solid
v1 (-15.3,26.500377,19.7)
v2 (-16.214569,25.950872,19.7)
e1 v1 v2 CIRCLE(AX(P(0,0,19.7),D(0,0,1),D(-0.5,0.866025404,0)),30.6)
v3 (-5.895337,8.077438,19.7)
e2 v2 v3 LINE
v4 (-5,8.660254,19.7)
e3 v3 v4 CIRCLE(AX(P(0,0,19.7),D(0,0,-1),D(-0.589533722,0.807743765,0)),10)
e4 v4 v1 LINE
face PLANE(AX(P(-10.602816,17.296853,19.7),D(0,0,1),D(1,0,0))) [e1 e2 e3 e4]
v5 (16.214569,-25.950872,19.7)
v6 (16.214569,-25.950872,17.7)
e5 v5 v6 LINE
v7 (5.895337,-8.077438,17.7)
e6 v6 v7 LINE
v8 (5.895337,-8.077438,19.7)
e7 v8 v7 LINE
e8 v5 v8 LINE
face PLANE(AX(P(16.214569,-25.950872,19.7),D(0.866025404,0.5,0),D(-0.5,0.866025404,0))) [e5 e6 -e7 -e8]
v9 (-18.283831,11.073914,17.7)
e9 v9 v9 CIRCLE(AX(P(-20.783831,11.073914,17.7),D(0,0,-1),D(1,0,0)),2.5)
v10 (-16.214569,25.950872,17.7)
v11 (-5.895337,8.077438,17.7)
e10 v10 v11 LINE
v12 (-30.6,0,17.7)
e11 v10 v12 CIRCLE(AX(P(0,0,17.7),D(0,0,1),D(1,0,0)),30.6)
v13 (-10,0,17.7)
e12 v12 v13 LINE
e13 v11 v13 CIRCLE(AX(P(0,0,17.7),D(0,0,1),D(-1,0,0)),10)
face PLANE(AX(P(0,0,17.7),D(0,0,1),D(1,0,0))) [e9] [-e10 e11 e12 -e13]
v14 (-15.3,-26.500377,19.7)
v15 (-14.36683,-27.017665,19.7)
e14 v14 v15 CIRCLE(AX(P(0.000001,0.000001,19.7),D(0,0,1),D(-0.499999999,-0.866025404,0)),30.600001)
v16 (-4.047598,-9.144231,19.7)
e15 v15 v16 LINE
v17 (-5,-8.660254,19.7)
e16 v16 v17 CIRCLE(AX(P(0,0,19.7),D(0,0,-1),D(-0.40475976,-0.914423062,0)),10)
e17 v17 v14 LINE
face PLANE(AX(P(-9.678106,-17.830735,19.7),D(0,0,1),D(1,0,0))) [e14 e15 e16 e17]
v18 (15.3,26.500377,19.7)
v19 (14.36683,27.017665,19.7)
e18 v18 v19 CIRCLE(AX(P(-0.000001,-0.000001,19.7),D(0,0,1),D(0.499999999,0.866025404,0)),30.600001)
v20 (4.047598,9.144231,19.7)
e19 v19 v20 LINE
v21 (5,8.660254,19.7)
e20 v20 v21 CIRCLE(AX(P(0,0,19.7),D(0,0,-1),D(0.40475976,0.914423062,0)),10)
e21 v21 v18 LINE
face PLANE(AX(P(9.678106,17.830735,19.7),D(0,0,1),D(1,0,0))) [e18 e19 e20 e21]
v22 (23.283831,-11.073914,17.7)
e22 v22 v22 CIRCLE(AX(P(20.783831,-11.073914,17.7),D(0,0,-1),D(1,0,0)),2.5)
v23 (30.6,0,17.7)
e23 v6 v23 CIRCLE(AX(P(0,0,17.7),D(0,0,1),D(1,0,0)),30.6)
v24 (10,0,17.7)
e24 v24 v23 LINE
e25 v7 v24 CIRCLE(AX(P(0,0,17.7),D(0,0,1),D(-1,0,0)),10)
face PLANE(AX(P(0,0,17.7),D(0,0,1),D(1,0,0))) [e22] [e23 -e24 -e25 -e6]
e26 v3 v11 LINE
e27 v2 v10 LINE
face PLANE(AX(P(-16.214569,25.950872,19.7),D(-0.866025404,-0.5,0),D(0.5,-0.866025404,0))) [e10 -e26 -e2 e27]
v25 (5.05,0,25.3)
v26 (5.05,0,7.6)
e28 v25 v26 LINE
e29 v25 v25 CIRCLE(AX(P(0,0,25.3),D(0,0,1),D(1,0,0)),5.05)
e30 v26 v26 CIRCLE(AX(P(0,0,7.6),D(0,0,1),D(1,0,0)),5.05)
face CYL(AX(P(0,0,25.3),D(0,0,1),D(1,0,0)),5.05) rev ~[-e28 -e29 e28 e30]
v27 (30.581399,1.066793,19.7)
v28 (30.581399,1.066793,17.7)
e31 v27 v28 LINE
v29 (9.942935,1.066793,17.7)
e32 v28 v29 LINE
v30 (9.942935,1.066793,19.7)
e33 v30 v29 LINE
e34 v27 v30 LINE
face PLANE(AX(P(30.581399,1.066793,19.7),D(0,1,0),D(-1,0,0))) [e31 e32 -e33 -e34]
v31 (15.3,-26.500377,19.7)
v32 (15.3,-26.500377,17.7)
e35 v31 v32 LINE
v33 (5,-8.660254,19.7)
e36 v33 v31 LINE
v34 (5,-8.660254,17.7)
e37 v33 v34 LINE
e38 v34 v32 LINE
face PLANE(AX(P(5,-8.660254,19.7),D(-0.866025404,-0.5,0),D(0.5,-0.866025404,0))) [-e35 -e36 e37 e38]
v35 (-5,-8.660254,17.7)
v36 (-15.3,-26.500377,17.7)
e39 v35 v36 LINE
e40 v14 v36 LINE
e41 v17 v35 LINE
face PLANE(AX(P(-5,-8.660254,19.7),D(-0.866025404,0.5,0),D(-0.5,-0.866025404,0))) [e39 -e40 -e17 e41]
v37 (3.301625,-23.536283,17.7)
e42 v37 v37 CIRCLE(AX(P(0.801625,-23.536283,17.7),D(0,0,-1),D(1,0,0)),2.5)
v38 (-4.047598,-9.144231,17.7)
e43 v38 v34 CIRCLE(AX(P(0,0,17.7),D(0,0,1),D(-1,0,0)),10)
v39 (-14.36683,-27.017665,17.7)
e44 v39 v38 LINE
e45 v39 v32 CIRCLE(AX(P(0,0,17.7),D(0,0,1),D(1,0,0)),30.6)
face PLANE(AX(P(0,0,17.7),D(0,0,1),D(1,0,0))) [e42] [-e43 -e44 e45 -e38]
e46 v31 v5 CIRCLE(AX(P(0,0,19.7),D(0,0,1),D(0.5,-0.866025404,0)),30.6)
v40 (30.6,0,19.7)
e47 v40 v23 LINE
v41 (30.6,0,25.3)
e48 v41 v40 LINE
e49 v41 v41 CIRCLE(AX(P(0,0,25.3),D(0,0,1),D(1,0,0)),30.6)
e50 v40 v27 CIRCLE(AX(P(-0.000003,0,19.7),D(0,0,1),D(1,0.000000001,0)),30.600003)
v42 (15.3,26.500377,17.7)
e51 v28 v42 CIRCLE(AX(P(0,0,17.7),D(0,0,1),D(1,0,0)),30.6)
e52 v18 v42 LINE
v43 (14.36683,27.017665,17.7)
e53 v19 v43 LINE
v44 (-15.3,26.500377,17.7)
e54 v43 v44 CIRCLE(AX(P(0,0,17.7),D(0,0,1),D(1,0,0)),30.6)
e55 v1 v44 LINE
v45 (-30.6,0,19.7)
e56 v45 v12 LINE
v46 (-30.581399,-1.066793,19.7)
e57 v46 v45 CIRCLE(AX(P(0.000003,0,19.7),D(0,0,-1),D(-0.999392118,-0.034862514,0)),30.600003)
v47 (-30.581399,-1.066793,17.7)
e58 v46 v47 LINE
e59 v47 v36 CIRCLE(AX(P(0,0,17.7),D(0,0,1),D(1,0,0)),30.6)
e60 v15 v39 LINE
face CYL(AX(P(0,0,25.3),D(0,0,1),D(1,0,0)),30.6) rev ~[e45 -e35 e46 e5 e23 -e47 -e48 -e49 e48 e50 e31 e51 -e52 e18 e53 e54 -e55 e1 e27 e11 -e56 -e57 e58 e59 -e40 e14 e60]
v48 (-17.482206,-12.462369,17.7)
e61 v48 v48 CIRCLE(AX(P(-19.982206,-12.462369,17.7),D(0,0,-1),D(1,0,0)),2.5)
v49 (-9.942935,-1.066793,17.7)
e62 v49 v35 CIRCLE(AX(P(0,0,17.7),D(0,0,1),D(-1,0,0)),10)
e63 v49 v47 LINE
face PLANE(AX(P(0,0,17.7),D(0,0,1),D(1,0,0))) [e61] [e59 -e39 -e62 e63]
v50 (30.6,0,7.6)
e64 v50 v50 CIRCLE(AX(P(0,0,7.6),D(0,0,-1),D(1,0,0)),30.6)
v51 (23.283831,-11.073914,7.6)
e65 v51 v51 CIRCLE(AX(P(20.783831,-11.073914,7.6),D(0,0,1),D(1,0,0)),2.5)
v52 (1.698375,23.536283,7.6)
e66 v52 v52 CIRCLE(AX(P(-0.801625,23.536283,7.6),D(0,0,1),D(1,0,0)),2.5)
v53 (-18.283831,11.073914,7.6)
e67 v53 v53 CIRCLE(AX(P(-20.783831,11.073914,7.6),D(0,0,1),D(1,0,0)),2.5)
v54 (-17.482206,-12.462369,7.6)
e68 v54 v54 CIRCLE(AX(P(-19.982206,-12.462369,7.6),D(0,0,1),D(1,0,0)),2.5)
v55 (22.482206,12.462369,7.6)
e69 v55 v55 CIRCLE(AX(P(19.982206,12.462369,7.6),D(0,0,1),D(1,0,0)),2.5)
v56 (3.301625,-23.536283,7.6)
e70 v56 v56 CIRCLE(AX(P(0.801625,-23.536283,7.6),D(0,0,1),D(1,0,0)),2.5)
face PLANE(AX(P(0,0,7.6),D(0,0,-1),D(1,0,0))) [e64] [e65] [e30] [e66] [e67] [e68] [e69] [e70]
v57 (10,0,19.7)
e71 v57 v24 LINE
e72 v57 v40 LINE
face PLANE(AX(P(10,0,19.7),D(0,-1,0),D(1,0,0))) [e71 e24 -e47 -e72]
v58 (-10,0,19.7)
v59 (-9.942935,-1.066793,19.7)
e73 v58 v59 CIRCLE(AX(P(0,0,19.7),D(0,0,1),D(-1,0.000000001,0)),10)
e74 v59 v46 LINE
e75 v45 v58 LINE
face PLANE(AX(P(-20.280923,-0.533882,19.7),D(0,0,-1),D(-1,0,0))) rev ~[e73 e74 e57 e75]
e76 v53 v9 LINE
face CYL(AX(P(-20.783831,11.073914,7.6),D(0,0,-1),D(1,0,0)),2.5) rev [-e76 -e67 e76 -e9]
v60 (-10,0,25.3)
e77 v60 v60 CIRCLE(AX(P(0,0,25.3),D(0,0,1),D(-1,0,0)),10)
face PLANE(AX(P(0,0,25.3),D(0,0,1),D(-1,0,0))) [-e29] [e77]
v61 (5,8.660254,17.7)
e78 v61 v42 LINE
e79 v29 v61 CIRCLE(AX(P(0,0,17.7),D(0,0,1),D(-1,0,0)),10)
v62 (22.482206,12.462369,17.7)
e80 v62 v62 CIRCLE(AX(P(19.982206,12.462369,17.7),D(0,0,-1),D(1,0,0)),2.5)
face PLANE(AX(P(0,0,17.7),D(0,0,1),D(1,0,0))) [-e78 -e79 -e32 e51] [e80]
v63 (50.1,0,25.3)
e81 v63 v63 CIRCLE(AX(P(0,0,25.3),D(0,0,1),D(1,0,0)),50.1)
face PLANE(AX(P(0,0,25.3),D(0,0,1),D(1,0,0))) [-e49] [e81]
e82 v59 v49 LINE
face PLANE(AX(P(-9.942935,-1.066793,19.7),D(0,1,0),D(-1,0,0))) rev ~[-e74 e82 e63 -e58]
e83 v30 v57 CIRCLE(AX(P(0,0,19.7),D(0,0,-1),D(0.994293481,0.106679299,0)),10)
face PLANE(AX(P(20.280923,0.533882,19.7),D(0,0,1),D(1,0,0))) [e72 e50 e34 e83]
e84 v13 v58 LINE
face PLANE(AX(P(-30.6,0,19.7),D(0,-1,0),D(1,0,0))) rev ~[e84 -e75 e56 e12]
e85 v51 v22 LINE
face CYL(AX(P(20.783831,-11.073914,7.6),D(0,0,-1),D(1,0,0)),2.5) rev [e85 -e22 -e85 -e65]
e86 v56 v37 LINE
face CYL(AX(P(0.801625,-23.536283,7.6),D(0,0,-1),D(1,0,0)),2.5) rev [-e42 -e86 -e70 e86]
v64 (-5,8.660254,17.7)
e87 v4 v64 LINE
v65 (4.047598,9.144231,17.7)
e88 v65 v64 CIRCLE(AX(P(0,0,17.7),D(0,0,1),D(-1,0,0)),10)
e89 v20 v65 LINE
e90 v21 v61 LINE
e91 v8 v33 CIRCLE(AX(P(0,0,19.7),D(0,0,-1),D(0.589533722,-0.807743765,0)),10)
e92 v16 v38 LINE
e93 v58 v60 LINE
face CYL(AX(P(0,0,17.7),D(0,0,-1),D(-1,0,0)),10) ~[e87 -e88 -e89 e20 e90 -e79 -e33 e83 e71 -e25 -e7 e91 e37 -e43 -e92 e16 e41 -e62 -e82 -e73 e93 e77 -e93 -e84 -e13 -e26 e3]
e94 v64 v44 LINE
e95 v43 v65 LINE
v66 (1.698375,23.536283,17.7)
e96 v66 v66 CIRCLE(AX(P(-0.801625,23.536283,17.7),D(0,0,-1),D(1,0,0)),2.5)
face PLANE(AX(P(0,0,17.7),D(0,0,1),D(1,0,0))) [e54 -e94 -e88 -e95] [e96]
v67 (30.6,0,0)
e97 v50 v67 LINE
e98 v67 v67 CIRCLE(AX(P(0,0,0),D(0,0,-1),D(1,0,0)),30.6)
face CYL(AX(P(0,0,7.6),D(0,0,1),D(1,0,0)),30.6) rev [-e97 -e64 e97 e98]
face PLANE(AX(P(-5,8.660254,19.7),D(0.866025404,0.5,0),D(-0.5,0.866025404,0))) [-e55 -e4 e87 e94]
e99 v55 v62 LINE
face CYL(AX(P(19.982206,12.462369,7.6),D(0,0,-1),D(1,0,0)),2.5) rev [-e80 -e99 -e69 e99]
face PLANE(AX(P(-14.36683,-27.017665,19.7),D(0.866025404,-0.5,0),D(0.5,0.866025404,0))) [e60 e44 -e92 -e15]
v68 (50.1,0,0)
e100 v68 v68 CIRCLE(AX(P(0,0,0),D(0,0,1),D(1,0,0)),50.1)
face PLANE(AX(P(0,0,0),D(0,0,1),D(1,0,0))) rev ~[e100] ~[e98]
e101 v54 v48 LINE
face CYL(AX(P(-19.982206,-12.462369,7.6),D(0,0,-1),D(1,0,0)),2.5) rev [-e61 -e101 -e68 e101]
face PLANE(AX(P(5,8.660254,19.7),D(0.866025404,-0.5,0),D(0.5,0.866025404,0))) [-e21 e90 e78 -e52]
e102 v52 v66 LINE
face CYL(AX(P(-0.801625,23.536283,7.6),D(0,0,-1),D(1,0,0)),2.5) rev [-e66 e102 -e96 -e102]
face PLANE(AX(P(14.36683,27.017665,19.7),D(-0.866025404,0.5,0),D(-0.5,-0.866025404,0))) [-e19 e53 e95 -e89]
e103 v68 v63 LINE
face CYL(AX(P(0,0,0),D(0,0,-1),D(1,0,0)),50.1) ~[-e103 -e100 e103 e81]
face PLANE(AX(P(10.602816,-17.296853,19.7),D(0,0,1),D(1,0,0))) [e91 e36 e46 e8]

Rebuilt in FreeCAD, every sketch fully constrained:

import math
import FreeCAD as App
import Part
import Sketcher
from FreeCAD import Vector
Q = App.Units.Quantity

doc = App.newDocument("Part")
params = doc.addObject("Spreadsheet::Sheet", "Params")
for row, (alias, value) in enumerate([
    ("sketch1_diameter", "100.2 mm"),
    ("pad1_length", "25.3 mm"),
    ("sketch2_diameter", "61.2 mm"),
    ("pocket1_length", "7.6 mm"),
    ("sketch3_diameter", "61.2 mm"),
    ("pocket2_length", "7.6 mm"),
    ("sketch4_diameter", "20 mm"),
    ("pad2_length", "7.6 mm"),
    ("sketch5_diameter", "10.1 mm"),
    ("pocket3_length", "10000 mm"),
    ("sketch6_radius", "10 mm"),
    ("sketch6_radius2", "30.6 mm"),
    ("pad3_length", "2 mm"),
    ("sketch7_diameter", "5 mm"),
], start=1):
    params.set(f"A{row}", alias)
    params.set(f"B{row}", "=" + value)
    params.setAlias(f"B{row}", alias)

body = doc.addObject("PartDesign::Body", "Body")

# Sketch on XY plane
sketch1 = body.newObject("Sketcher::SketchObject", "Sketch")
sketch1.AttachmentSupport = (doc.getObject("XY_Plane"), [""])
sketch1.MapMode = "FlatFace"
sketch1.addGeometry(Part.Circle(Vector(0, 0, 0), Vector(0, 0, 1), 50), False)
sketch1.addConstraint([
    Sketcher.Constraint("Coincident", 0, 3, -1, 1),
    Sketcher.Constraint("Diameter", 0, Q("100.2 mm")),
])
sketch1.setExpression("Constraints[1]", "Params.sketch1_diameter")
pad1 = body.newObject("PartDesign::Pad", "Pad")
pad1.Profile = sketch1
pad1.setExpression("Length", "Params.pad1_length")

# Sketch on XY plane
sketch2 = body.newObject("Sketcher::SketchObject", "Sketch001")
sketch2.AttachmentSupport = (doc.getObject("XY_Plane"), [""])
sketch2.MapMode = "FlatFace"
sketch2.AttachmentOffset = App.Placement(Vector(0, 0, 25.3), App.Rotation())
sketch2.addGeometry(Part.Circle(Vector(0, 0, 0), Vector(0, 0, 1), 31), False)
sketch2.addConstraint([
    Sketcher.Constraint("Coincident", 0, 3, -1, 1),
    Sketcher.Constraint("Diameter", 0, Q("61.2 mm")),
])
sketch2.setExpression("Constraints[1]", "Params.sketch2_diameter")
pocket1 = body.newObject("PartDesign::Pocket", "Pocket")
pocket1.Profile = sketch2
pocket1.setExpression("Length", "Params.pocket1_length")

# Sketch on XY plane
sketch3 = body.newObject("Sketcher::SketchObject", "Sketch002")
sketch3.AttachmentSupport = (doc.getObject("XY_Plane"), [""])
sketch3.MapMode = "FlatFace"
sketch3.AttachmentOffset = App.Placement(Vector(0, 0, 7.6), App.Rotation())
sketch3.addGeometry(Part.Circle(Vector(0, 0, 0), Vector(0, 0, 1), 31), False)
sketch3.addConstraint([
    Sketcher.Constraint("Coincident", 0, 3, -1, 1),
    Sketcher.Constraint("Diameter", 0, Q("61.2 mm")),
])
sketch3.setExpression("Constraints[1]", "Params.sketch3_diameter")
pocket2 = body.newObject("PartDesign::Pocket", "Pocket001")
pocket2.Profile = sketch3
pocket2.setExpression("Length", "Params.pocket2_length")

# Sketch on XY plane
sketch4 = body.newObject("Sketcher::SketchObject", "Sketch003")
sketch4.AttachmentSupport = (doc.getObject("XY_Plane"), [""])
sketch4.MapMode = "FlatFace"
sketch4.AttachmentOffset = App.Placement(Vector(0, 0, 17.7), App.Rotation())
sketch4.addGeometry(Part.Circle(Vector(0, 0, 0), Vector(0, 0, 1), 10), False)
sketch4.addConstraint([
    Sketcher.Constraint("Coincident", 0, 3, -1, 1),
    Sketcher.Constraint("Diameter", 0, Q("20 mm")),
])
sketch4.setExpression("Constraints[1]", "Params.sketch4_diameter")
pad2 = body.newObject("PartDesign::Pad", "Pad001")
pad2.Profile = sketch4
pad2.setExpression("Length", "Params.pad2_length")

# Sketch on XY plane
sketch5 = body.newObject("Sketcher::SketchObject", "Sketch004")
sketch5.AttachmentSupport = (doc.getObject("XY_Plane"), [""])
sketch5.MapMode = "FlatFace"
sketch5.AttachmentOffset = App.Placement(Vector(0, 0, 25.3), App.Rotation())
sketch5.addGeometry(Part.Circle(Vector(0, 0, 0), Vector(0, 0, 1), 5), False)
sketch5.addConstraint([
    Sketcher.Constraint("Coincident", 0, 3, -1, 1),
    Sketcher.Constraint("Diameter", 0, Q("10.1 mm")),
])
sketch5.setExpression("Constraints[1]", "Params.sketch5_diameter")
pocket3 = body.newObject("PartDesign::Pocket", "Pocket002")
pocket3.Profile = sketch5
pocket3.setExpression("Length", "Params.pocket3_length")

# Sketch on XY plane
sketch6 = body.newObject("Sketcher::SketchObject", "Sketch005")
sketch6.AttachmentSupport = (doc.getObject("XY_Plane"), [""])
sketch6.MapMode = "FlatFace"
sketch6.AttachmentOffset = App.Placement(Vector(0, 0, 19.7), App.Rotation())
sketch6.addGeometry([
    Part.LineSegment(Vector(-10, 0, 0), Vector(-30.6, 0, 0)),  # 0
    Part.ArcOfCircle(Part.Circle(Vector(0, 0, 0), Vector(0, 0, 1), 30.6), math.radians(-180), math.radians(-178)),  # 1
    Part.LineSegment(Vector(-30.6, -1.1, 0), Vector(-9.9, -1.1, 0)),  # 2
    Part.ArcOfCircle(Part.Circle(Vector(0, 0, 0), Vector(0, 0, 1), 10), math.radians(180), math.radians(186.12)),  # 3
    Part.LineSegment(Vector(-16.2, 26, 0), Vector(-5.9, 8.1, 0)),  # 4
    Part.ArcOfCircle(Part.Circle(Vector(0, 0, 0), Vector(0, 0, 1), 10), math.radians(120), math.radians(126.12)),  # 5
    Part.LineSegment(Vector(-5, 8.7, 0), Vector(-15.3, 26.5, 0)),  # 6
    Part.ArcOfCircle(Part.Circle(Vector(0, 0, 0), Vector(0, 0, 1), 30.6), math.radians(120), math.radians(122)),  # 7
    Part.LineSegment(Vector(14.4, 27, 0), Vector(4, 9.1, 0)),  # 8
    Part.ArcOfCircle(Part.Circle(Vector(0, 0, 0), Vector(0, 0, 1), 10), math.radians(60), math.radians(66.12)),  # 9
    Part.LineSegment(Vector(5, 8.7, 0), Vector(15.3, 26.5, 0)),  # 10
    Part.ArcOfCircle(Part.Circle(Vector(0, 0, 0), Vector(0, 0, 1), 30.6), math.radians(60), math.radians(62)),  # 11
    Part.LineSegment(Vector(30.6, 1.1, 0), Vector(9.9, 1.1, 0)),  # 12
    Part.ArcOfCircle(Part.Circle(Vector(0, 0, 0), Vector(0, 0, 1), 10), math.radians(0), math.radians(6.12)),  # 13
    Part.LineSegment(Vector(10, 0, 0), Vector(30.6, 0, 0)),  # 14
    Part.ArcOfCircle(Part.Circle(Vector(0, 0, 0), Vector(0, 0, 1), 30.6), math.radians(0), math.radians(2)),  # 15
    Part.LineSegment(Vector(16.2, -26, 0), Vector(5.9, -8.1, 0)),  # 16
    Part.ArcOfCircle(Part.Circle(Vector(0, 0, 0), Vector(0, 0, 1), 10), math.radians(-60), math.radians(-53.88)),  # 17
    Part.LineSegment(Vector(5, -8.7, 0), Vector(15.3, -26.5, 0)),  # 18
    Part.ArcOfCircle(Part.Circle(Vector(0, 0, 0), Vector(0, 0, 1), 30.6), math.radians(-60), math.radians(-58)),  # 19
    Part.LineSegment(Vector(-14.4, -27, 0), Vector(-4, -9.1, 0)),  # 20
    Part.ArcOfCircle(Part.Circle(Vector(0, 0, 0), Vector(0, 0, 1), 10), math.radians(-120), math.radians(-113.88)),  # 21
    Part.LineSegment(Vector(-5, -8.7, 0), Vector(-15.3, -26.5, 0)),  # 22
    Part.ArcOfCircle(Part.Circle(Vector(0, 0, 0), Vector(0, 0, 1), 30.6), math.radians(-120), math.radians(-118)),  # 23
], False)
sketch6.addConstraint([
    Sketcher.Constraint("Coincident", 0, 2, 1, 1),
    Sketcher.Constraint("Coincident", 1, 2, 2, 1),
    Sketcher.Constraint("Coincident", 2, 2, 3, 2),
    Sketcher.Constraint("Coincident", 3, 1, 0, 1),
    Sketcher.Constraint("Coincident", 4, 2, 5, 2),
    Sketcher.Constraint("Coincident", 5, 1, 6, 1),
    Sketcher.Constraint("Coincident", 6, 2, 7, 1),
    Sketcher.Constraint("Coincident", 7, 2, 4, 1),
    Sketcher.Constraint("Coincident", 8, 2, 9, 2),
    Sketcher.Constraint("Coincident", 9, 1, 10, 1),
    Sketcher.Constraint("Coincident", 10, 2, 11, 1),
    Sketcher.Constraint("Coincident", 11, 2, 8, 1),
    Sketcher.Constraint("Coincident", 12, 2, 13, 2),
    Sketcher.Constraint("Coincident", 13, 1, 14, 1),
    Sketcher.Constraint("Coincident", 14, 2, 15, 1),
    Sketcher.Constraint("Coincident", 15, 2, 12, 1),
    Sketcher.Constraint("Coincident", 16, 2, 17, 2),
    Sketcher.Constraint("Coincident", 17, 1, 18, 1),
    Sketcher.Constraint("Coincident", 18, 2, 19, 1),
    Sketcher.Constraint("Coincident", 19, 2, 16, 1),
    Sketcher.Constraint("Coincident", 20, 2, 21, 2),
    Sketcher.Constraint("Coincident", 21, 1, 22, 1),
    Sketcher.Constraint("Coincident", 22, 2, 23, 1),
    Sketcher.Constraint("Coincident", 23, 2, 20, 1),
    Sketcher.Constraint("Horizontal", 0),
    Sketcher.Constraint("Horizontal", 2),
    Sketcher.Constraint("Horizontal", 12),
    Sketcher.Constraint("Horizontal", 14),
    Sketcher.Constraint("Coincident", 1, 3, -1, 1),
    Sketcher.Constraint("Coincident", 3, 3, -1, 1),
    Sketcher.Constraint("Coincident", 5, 3, -1, 1),
    Sketcher.Constraint("Coincident", 7, 3, -1, 1),
    Sketcher.Constraint("Coincident", 9, 3, -1, 1),
    Sketcher.Constraint("Coincident", 11, 3, -1, 1),
    Sketcher.Constraint("Coincident", 13, 3, -1, 1),
    Sketcher.Constraint("Coincident", 15, 3, -1, 1),
    Sketcher.Constraint("Coincident", 17, 3, -1, 1),
    Sketcher.Constraint("Coincident", 19, 3, -1, 1),
    Sketcher.Constraint("Coincident", 21, 3, -1, 1),
    Sketcher.Constraint("Coincident", 23, 3, -1, 1),
    Sketcher.Constraint("Equal", 3, 5),
    Sketcher.Constraint("Equal", 5, 9),
    Sketcher.Constraint("Equal", 7, 11),
    Sketcher.Constraint("Equal", 9, 13),
    Sketcher.Constraint("Equal", 11, 15),
    Sketcher.Constraint("Equal", 13, 17),
    Sketcher.Constraint("Equal", 11, 19),
    Sketcher.Constraint("Equal", 17, 21),
    Sketcher.Constraint("Equal", 19, 23),
    Sketcher.Constraint("Symmetric", 0, 2, 14, 2, -1, 1),
    Sketcher.Constraint("PointOnObject", 0, 2, -1),
    Sketcher.Constraint("Parallel", 4, 6),
    Sketcher.Constraint("Parallel", 8, 10),
    Sketcher.Constraint("Parallel", 6, 16),
    Sketcher.Constraint("Parallel", 16, 18),
    Sketcher.Constraint("Parallel", 10, 20),
    Sketcher.Constraint("Parallel", 20, 22),
    Sketcher.Constraint("Horizontal", 5, 1, 9, 1),
    Sketcher.Constraint("Horizontal", 6, 2, 10, 2),
    Sketcher.Constraint("Horizontal", 17, 1, 21, 1),
    Sketcher.Constraint("Vertical", 9, 1, 17, 1),
    Sketcher.Constraint("Equal", 2, 12),
    Sketcher.Constraint("Equal", 4, 8),
    Sketcher.Constraint("Equal", 8, 16),
    Sketcher.Constraint("Equal", 16, 20),
    Sketcher.Constraint("Radius", 3, Q("10 mm")),
    Sketcher.Constraint("Radius", 7, Q("30.6 mm")),
    Sketcher.Constraint("Angle", 4, Q("-60 deg")),
    Sketcher.Constraint("DistanceX", 5, 1, -1, 1, Q("5 mm")),
    Sketcher.Constraint("DistanceX", 1, 2, -1, 1, Q("30.581399 mm")),
    Sketcher.Constraint("DistanceX", 8, 2, 15, 2, Q("26.533801 mm")),
])
sketch6.setExpression("Constraints[65]", "Params.sketch6_radius")
sketch6.setExpression("Constraints[66]", "Params.sketch6_radius2")
pad3 = body.newObject("PartDesign::Pad", "Pad002")
pad3.Profile = sketch6
pad3.setExpression("Length", "Params.pad3_length")
pad3.Reversed = True

# Sketch on XY plane
sketch7 = body.newObject("Sketcher::SketchObject", "Sketch006")
sketch7.AttachmentSupport = (doc.getObject("XY_Plane"), [""])
sketch7.MapMode = "FlatFace"
sketch7.AttachmentOffset = App.Placement(Vector(0, 0, 7.6), App.Rotation())
sketch7.addGeometry([
    Part.Circle(Vector(-20, -12.5, 0), Vector(0, 0, 1), 2.5),  # 0
    Part.Circle(Vector(-20.8, 11.1, 0), Vector(0, 0, 1), 2.5),  # 1
    Part.Circle(Vector(-0.8, 23.5, 0), Vector(0, 0, 1), 2.5),  # 2
    Part.Circle(Vector(20, 12.5, 0), Vector(0, 0, 1), 2.5),  # 3
    Part.Circle(Vector(20.8, -11.1, 0), Vector(0, 0, 1), 2.5),  # 4
    Part.Circle(Vector(0.8, -23.5, 0), Vector(0, 0, 1), 2.5),  # 5
], False)
sketch7.addConstraint([
    Sketcher.Constraint("Equal", 0, 1),
    Sketcher.Constraint("Equal", 1, 2),
    Sketcher.Constraint("Equal", 2, 3),
    Sketcher.Constraint("Equal", 3, 4),
    Sketcher.Constraint("Equal", 4, 5),
    Sketcher.Constraint("Symmetric", 0, 3, 3, 3, -1, 1),
    Sketcher.Constraint("Symmetric", 1, 3, 4, 3, -1, 1),
    Sketcher.Constraint("Symmetric", 2, 3, 5, 3, -1, 1),
    Sketcher.Constraint("Diameter", 0, Q("5 mm")),
    Sketcher.Constraint("DistanceY", 0, 3, -1, 1, Q("12.462369 mm")),
    Sketcher.Constraint("DistanceX", 1, 3, -1, 1, Q("20.783831 mm")),
    Sketcher.Constraint("DistanceY", 1, 3, 2, 3, Q("12.462369 mm")),
    Sketcher.Constraint("DistanceX", 0, 3, 2, 3, Q("19.180581 mm")),
    Sketcher.Constraint("DistanceY", 0, 3, 2, 3, Q("35.998651 mm")),
    Sketcher.Constraint("DistanceX", 2, 3, 3, 3, Q("20.783831 mm")),
])
sketch7.setExpression("Constraints[8]", "Params.sketch7_diameter")
pocket4 = body.newObject("PartDesign::Pocket", "Pocket003")
pocket4.Profile = sketch7
pocket4.Type = "ThroughAll"
pocket4.Reversed = True

doc.recompute()
